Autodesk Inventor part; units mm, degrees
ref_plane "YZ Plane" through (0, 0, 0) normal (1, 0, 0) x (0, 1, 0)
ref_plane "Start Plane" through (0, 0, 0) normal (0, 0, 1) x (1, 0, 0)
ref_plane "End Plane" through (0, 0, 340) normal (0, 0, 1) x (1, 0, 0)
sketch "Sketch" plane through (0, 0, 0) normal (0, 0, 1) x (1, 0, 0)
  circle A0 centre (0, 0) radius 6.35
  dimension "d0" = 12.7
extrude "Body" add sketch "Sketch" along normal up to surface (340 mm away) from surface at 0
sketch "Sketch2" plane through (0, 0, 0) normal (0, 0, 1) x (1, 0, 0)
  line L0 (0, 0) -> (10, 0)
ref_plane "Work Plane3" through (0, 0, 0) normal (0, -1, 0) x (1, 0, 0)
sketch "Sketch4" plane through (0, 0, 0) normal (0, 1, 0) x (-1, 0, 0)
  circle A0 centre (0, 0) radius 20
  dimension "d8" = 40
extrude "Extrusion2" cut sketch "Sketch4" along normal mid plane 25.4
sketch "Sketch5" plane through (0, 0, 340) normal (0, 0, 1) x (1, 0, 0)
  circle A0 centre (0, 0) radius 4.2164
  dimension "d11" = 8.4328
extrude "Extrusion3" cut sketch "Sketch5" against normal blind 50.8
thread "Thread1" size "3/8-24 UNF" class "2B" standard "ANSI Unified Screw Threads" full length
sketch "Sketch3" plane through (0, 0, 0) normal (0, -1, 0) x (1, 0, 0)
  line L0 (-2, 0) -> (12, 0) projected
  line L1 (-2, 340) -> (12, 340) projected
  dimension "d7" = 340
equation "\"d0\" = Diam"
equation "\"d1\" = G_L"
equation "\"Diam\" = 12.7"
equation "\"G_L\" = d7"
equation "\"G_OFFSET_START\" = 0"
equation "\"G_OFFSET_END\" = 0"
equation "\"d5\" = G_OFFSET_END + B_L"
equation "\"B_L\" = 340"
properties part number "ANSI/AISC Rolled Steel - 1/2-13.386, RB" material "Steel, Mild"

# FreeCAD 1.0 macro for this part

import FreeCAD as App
import Part
import Sketcher
from FreeCAD import Vector
Q = App.Units.Quantity

doc = App.newDocument("Part")
params = doc.addObject("Spreadsheet::Sheet", "Params")
for row, (alias, value) in enumerate([
    ("sketch1_diameter", "0.5 in"),
    ("pad1_length", "340 mm"),
    ("pocket1_length", "1 in"),
    ("sketch3_diameter", "0.332 in"),
    ("pocket2_length", "2 in"),
], start=1):
    params.set(f"A{row}", alias)
    params.set(f"B{row}", "=" + value)
    params.setAlias(f"B{row}", alias)

body = doc.addObject("PartDesign::Body", "Body")

# Sketch on XY plane
sketch1 = body.newObject("Sketcher::SketchObject", "Sketch")
sketch1.AttachmentSupport = (doc.getObject("XY_Plane"), [""])
sketch1.MapMode = "FlatFace"
sketch1.addGeometry(Part.Circle(Vector(0, 0, 0), Vector(0, 0, 1), 6), False)
sketch1.addConstraint([
    Sketcher.Constraint("Coincident", 0, 3, -1, 1),
    Sketcher.Constraint("Diameter", 0, Q("0.5 in")),
])
sketch1.setExpression("Constraints[1]", "Params.sketch1_diameter")
pad1 = body.newObject("PartDesign::Pad", "Pad")
pad1.Profile = sketch1
pad1.setExpression("Length", "Params.pad1_length")

# Sketch on XZ plane
sketch2 = body.newObject("Sketcher::SketchObject", "Sketch001")
sketch2.AttachmentSupport = (doc.getObject("XZ_Plane"), [""])
sketch2.MapMode = "FlatFace"
sketch2.addGeometry(Part.Circle(Vector(0, 0, 0), Vector(0, 0, 1), 20), False)
sketch2.addConstraint([
    Sketcher.Constraint("Coincident", 0, 3, -1, 1),
    Sketcher.Constraint("Diameter", 0, Q("1.5748 in")),
])
pocket1 = body.newObject("PartDesign::Pocket", "Pocket")
pocket1.Profile = sketch2
pocket1.setExpression("Length", "Params.pocket1_length")
pocket1.Midplane = True

# Sketch on XY plane
sketch3 = body.newObject("Sketcher::SketchObject", "Sketch002")
sketch3.AttachmentSupport = (doc.getObject("XY_Plane"), [""])
sketch3.MapMode = "FlatFace"
sketch3.AttachmentOffset = App.Placement(Vector(0, 0, 340), App.Rotation())
sketch3.addGeometry(Part.Circle(Vector(0, 0, 0), Vector(0, 0, 1), 4.2), False)
sketch3.addConstraint([
    Sketcher.Constraint("Coincident", 0, 3, -1, 1),
    Sketcher.Constraint("Diameter", 0, Q("0.332 in")),
])
sketch3.setExpression("Constraints[1]", "Params.sketch3_diameter")
pocket2 = body.newObject("PartDesign::Pocket", "Pocket001")
pocket2.Profile = sketch3
pocket2.setExpression("Length", "Params.pocket2_length")

doc.recompute()
